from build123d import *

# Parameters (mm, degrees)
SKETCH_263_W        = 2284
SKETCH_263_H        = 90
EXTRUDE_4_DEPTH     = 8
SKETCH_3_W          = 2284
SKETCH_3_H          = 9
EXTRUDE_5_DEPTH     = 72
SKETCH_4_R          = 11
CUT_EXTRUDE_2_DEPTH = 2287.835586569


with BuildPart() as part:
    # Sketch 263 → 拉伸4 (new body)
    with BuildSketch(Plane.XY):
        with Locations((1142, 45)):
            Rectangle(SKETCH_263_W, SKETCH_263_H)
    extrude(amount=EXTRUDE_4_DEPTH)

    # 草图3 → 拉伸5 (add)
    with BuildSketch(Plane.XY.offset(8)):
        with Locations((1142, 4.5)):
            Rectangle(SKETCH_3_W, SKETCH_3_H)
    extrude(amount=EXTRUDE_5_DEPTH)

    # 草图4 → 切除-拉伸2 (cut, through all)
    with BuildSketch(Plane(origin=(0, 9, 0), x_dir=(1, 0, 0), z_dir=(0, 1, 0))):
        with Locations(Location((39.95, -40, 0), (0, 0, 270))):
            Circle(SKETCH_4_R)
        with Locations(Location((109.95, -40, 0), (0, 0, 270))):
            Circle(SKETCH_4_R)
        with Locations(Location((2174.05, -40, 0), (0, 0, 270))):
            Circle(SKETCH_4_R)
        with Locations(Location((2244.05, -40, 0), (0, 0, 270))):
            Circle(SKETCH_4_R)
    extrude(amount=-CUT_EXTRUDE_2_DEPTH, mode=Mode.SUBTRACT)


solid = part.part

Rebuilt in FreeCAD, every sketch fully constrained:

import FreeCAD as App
import Part
import Sketcher
from FreeCAD import Vector


def add_polygon(sketch, points):
    """Adds a closed chain of lines whose ends are joined by coincident constraints."""
    first, n = sketch.GeometryCount, len(points)
    for a, b in zip(points, points[1:] + points[:1]):
        sketch.addGeometry(Part.LineSegment(App.Vector(*a, 0), App.Vector(*b, 0)), False)
    for i in range(n):
        sketch.addConstraint(Sketcher.Constraint("Coincident", first + i, 2, first + (i + 1) % n, 1))

doc = App.newDocument("Part")
body = doc.addObject("PartDesign::Body", "Body")

# Sketch on XY plane
sketch1 = doc.addObject("Sketcher::SketchObject", "Sketch")
body.addObject(sketch1)
sketch1.AttachmentSupport = (doc.XY_Plane, [""])
sketch1.MapMode = "FlatFace"
add_polygon(sketch1, [(0, 90), (0, 0), (2284, 0), (2284, 90)])  # lines 0-3
sketch1.addConstraint([
    Sketcher.Constraint("Vertical", 0),
    Sketcher.Constraint("Horizontal", 1),
    Sketcher.Constraint("Vertical", 2),
    Sketcher.Constraint("Horizontal", 3),
    Sketcher.Constraint("Coincident", 0, 2, -1, 1),
    Sketcher.Constraint("DistanceX", 1, 1, 1, 2, 2284.0),
    Sketcher.Constraint("DistanceY", 0, 2, 0, 1, 90.0),
])
pad1 = doc.addObject("PartDesign::Pad", "Pad")
body.addObject(pad1)
pad1.Profile = sketch1
pad1.Length = 8

# Sketch on XY plane
sketch2 = doc.addObject("Sketcher::SketchObject", "Sketch001")
body.addObject(sketch2)
sketch2.AttachmentSupport = (doc.XY_Plane, [""])
sketch2.MapMode = "FlatFace"
sketch2.AttachmentOffset = App.Placement(Vector(0, 0, 8), App.Rotation())
add_polygon(sketch2, [(0, 9), (0, 0), (2284, 0), (2284, 9)])  # lines 0-3
sketch2.addConstraint([
    Sketcher.Constraint("Vertical", 0),
    Sketcher.Constraint("Horizontal", 1),
    Sketcher.Constraint("Vertical", 2),
    Sketcher.Constraint("Horizontal", 3),
    Sketcher.Constraint("Coincident", 0, 2, -1, 1),
    Sketcher.Constraint("DistanceX", 1, 1, 1, 2, 2284.0),
    Sketcher.Constraint("DistanceY", 0, 2, 0, 1, 9.0),
])
pad2 = doc.addObject("PartDesign::Pad", "Pad001")
body.addObject(pad2)
pad2.Profile = sketch2
pad2.Length = 72

# Sketch on XZ plane
sketch3 = doc.addObject("Sketcher::SketchObject", "Sketch002")
body.addObject(sketch3)
sketch3.AttachmentSupport = (doc.XZ_Plane, [""])
sketch3.MapMode = "FlatFace"
sketch3.AttachmentOffset = App.Placement(Vector(0, 0, -9), App.Rotation())
sketch3.addGeometry([
    Part.Circle(Vector(40, 40, 0), Vector(0, 0, 1), 11),
    Part.Circle(Vector(110, 40, 0), Vector(0, 0, 1), 11),
    Part.Circle(Vector(2174, 40, 0), Vector(0, 0, 1), 11),
    Part.Circle(Vector(2244, 40, 0), Vector(0, 0, 1), 11),
], False)
sketch3.addConstraint([
    Sketcher.Constraint("Equal", 0, 1),
    Sketcher.Constraint("Equal", 1, 2),
    Sketcher.Constraint("Equal", 2, 3),
    Sketcher.Constraint("Horizontal", 0, 3, 1, 3),
    Sketcher.Constraint("Horizontal", 1, 3, 2, 3),
    Sketcher.Constraint("Horizontal", 2, 3, 3, 3),
    Sketcher.Constraint("Diameter", 0, 22.0),
    Sketcher.Constraint("DistanceY", -1, 1, 0, 3, 40.0),
    Sketcher.Constraint("DistanceX", 0, 3, 1, 3, 70.0),
    Sketcher.Constraint("DistanceX", 2, 3, 3, 3, 70.0),
    Sketcher.Constraint("DistanceX", 1, 3, 2, 3, 2064.1),
    Sketcher.Constraint("DistanceX", -1, 1, 0, 3, 39.95),
])
pocket1 = doc.addObject("PartDesign::Pocket", "Pocket")
body.addObject(pocket1)
pocket1.Profile = sketch3
pocket1.Type = "ThroughAll"
pocket1.Reversed = True

doc.recompute()
